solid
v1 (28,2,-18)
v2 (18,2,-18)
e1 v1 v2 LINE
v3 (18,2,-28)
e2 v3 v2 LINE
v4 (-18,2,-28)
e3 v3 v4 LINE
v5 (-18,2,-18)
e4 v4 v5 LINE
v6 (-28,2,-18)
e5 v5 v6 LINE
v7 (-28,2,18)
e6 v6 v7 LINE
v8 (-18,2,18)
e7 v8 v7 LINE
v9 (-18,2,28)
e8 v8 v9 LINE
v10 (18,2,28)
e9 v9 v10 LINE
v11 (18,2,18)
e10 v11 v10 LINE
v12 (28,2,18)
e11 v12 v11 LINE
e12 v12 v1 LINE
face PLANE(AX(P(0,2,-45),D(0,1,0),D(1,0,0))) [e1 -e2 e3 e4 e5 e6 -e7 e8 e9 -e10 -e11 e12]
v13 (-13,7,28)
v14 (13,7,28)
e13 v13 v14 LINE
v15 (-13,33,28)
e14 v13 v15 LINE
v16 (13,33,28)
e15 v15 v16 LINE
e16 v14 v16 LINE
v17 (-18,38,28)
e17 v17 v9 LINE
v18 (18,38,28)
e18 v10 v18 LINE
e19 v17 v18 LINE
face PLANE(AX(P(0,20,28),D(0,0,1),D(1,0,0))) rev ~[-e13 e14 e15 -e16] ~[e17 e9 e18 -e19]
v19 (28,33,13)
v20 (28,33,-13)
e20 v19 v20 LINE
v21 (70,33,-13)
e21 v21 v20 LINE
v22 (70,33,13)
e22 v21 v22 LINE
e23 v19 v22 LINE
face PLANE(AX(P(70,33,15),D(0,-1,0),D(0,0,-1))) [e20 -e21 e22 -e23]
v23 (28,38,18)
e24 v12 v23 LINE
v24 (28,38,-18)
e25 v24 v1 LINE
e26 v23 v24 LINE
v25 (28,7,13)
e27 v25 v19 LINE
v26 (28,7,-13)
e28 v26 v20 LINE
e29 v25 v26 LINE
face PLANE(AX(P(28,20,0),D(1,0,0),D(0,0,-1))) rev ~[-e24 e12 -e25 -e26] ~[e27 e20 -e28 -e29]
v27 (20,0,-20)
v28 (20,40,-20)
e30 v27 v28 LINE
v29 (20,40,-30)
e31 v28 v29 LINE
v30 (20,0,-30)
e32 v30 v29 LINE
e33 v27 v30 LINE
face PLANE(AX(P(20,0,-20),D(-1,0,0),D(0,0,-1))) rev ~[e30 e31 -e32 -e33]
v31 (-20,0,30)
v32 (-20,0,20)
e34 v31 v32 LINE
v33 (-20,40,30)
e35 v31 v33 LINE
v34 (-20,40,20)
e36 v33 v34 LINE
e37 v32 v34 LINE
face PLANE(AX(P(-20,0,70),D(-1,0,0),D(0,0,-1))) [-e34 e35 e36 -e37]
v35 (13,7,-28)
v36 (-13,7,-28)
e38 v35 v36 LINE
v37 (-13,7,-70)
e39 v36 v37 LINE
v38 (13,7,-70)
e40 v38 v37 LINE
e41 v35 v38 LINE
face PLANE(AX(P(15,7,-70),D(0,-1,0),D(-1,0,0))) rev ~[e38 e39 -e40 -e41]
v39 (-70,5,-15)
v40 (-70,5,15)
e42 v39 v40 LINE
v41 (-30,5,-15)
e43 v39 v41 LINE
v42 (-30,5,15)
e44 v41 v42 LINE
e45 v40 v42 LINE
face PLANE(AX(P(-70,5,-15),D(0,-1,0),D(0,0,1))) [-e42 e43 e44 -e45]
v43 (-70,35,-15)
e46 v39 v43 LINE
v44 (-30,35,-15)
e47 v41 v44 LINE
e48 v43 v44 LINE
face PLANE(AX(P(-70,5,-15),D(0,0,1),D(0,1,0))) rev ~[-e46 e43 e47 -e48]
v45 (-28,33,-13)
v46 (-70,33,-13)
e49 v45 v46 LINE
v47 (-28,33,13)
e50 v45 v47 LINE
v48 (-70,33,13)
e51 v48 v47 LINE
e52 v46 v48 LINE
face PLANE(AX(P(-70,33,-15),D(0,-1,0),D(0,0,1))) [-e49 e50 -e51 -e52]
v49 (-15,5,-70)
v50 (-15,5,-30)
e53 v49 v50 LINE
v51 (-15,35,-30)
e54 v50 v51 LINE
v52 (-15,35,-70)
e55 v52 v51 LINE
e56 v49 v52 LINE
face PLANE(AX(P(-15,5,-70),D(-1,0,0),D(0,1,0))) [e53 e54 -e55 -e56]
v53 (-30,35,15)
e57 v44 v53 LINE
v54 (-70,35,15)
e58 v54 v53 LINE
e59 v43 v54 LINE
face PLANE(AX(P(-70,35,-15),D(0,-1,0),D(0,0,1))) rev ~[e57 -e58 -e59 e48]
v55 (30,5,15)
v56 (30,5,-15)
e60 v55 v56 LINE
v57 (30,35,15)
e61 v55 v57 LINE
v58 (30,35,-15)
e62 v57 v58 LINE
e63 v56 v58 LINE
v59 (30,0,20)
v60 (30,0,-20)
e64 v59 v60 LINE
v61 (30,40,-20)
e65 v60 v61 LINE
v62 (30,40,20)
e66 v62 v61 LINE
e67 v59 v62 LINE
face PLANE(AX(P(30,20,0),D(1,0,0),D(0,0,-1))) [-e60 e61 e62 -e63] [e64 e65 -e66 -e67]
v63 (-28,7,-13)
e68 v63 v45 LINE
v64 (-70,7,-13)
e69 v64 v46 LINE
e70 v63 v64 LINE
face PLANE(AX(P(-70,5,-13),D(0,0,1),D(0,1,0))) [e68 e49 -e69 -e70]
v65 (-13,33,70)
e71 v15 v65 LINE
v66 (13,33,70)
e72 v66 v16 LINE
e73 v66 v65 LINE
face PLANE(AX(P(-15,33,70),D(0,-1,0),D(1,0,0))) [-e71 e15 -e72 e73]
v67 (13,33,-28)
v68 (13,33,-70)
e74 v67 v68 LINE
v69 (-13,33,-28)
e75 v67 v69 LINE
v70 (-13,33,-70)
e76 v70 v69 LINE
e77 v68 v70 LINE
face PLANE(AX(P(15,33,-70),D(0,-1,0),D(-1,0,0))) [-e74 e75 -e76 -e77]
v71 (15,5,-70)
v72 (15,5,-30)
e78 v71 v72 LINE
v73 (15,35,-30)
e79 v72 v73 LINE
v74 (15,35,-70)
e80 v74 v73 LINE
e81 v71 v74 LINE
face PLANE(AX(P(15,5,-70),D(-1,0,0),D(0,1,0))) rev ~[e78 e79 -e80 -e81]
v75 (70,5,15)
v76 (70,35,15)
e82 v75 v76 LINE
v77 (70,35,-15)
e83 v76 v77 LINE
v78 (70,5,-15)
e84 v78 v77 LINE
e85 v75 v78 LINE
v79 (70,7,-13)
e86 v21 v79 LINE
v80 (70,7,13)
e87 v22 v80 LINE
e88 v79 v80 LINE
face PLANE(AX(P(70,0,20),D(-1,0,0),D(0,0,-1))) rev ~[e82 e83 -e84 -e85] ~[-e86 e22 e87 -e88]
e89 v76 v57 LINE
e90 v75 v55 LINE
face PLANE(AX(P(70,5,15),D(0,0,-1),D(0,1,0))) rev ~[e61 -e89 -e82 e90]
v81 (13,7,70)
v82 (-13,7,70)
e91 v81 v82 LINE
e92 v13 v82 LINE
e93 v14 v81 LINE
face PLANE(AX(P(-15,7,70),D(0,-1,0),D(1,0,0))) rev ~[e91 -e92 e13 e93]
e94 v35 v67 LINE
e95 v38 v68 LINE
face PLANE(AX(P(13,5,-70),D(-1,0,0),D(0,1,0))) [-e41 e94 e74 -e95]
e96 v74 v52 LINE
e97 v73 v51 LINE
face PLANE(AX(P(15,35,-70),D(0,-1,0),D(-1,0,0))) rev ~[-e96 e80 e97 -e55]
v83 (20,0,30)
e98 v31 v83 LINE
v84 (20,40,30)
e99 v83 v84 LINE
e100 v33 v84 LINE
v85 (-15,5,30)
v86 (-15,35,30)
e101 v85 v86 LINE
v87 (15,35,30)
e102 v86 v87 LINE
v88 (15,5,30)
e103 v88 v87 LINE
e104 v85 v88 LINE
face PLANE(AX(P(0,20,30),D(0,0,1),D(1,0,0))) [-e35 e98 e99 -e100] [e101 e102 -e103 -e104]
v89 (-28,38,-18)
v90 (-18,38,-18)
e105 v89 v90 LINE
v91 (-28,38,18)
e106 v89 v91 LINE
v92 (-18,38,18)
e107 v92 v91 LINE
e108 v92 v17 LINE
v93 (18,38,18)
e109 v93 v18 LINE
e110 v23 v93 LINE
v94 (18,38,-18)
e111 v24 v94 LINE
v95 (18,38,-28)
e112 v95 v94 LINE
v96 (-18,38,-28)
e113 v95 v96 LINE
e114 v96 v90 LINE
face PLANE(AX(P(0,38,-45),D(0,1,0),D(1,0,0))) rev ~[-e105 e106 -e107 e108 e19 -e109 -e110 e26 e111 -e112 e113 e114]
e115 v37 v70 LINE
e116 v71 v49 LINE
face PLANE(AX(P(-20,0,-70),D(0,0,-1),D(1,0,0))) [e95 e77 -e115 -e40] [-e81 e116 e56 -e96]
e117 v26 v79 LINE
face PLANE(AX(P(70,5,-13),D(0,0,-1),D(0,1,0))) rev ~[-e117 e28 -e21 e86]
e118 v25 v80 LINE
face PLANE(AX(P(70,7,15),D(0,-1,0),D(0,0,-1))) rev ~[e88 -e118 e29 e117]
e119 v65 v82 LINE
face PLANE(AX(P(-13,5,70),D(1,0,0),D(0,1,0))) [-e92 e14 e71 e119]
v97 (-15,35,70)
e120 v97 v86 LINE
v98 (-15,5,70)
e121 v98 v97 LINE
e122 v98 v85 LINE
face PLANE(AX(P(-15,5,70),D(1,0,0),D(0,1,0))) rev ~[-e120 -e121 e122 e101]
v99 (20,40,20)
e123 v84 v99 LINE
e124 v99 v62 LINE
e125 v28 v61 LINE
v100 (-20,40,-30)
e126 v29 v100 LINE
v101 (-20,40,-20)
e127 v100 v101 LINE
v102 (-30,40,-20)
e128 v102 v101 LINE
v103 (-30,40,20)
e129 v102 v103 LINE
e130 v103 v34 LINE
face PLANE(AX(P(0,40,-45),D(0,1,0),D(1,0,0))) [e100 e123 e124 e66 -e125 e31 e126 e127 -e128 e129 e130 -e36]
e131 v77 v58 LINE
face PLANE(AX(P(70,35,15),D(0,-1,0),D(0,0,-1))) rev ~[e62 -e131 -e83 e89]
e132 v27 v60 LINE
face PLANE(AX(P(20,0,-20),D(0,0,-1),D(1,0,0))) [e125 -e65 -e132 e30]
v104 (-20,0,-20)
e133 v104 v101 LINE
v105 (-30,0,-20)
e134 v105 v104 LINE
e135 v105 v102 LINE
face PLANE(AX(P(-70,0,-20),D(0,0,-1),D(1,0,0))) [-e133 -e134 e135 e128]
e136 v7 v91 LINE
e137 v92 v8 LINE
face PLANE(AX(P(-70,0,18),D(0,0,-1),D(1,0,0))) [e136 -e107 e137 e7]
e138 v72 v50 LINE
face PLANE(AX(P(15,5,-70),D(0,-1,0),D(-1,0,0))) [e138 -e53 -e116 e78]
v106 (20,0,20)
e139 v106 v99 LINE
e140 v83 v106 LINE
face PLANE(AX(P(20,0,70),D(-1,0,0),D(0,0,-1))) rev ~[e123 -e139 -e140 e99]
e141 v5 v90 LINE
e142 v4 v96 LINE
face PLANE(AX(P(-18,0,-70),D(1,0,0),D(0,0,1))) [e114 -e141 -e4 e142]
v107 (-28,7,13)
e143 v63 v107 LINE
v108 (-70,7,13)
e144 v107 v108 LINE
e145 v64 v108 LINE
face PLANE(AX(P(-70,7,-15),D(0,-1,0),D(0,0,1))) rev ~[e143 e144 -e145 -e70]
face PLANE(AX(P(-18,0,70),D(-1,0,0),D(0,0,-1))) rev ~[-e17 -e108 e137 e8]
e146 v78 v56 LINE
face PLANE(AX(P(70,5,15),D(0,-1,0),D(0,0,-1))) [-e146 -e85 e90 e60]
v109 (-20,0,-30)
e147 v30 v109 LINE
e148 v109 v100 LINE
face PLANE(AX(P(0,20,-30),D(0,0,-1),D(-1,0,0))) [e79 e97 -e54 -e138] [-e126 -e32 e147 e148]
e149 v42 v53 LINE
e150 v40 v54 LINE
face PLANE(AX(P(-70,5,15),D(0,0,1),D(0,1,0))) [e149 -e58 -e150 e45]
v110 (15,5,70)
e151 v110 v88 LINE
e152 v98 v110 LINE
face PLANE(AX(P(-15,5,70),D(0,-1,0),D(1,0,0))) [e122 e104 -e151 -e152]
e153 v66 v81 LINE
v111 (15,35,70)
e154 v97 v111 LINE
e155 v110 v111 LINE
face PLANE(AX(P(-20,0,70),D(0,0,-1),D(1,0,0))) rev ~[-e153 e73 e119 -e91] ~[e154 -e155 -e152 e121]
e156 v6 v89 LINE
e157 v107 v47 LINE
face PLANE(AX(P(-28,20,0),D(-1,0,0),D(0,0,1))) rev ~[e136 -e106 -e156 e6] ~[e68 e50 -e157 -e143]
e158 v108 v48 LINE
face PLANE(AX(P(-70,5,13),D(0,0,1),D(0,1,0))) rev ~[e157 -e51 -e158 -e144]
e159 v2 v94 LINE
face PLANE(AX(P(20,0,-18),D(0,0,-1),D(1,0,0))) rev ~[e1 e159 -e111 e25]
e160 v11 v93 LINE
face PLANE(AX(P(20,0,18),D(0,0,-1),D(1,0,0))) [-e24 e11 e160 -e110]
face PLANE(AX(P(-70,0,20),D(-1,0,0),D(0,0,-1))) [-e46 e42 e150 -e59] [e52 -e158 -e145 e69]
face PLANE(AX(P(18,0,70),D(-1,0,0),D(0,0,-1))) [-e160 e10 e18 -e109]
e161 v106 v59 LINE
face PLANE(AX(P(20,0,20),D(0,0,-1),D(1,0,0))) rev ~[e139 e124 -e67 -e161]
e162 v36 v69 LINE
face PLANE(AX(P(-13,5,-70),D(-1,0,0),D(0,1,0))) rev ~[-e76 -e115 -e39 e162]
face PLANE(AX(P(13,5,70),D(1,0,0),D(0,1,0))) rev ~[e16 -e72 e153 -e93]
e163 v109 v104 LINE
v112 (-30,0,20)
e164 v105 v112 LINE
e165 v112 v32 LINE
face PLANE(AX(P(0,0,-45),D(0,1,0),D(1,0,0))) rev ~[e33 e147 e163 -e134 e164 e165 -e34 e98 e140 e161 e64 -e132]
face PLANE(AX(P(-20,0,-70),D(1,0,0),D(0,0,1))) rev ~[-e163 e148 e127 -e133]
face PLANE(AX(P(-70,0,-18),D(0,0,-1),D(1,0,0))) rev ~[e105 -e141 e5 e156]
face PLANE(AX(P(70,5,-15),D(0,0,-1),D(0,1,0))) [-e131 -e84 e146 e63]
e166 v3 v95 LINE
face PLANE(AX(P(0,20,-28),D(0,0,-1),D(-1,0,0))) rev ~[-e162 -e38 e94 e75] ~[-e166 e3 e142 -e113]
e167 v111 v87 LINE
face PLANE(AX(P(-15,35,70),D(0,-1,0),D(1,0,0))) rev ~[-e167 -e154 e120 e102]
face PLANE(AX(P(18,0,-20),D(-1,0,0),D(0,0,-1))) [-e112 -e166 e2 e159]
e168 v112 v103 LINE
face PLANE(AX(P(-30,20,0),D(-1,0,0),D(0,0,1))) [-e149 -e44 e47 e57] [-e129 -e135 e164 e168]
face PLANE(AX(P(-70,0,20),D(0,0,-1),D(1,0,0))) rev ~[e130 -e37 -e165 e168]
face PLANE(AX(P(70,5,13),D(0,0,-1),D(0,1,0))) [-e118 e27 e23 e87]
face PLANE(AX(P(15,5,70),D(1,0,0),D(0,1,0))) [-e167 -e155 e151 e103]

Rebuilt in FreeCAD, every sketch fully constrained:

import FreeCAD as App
import Part
import Sketcher

V = App.Vector


def faces_at(feature, points):
    """Names of the faces that lie closest to the given points."""
    faces = feature.Shape.Faces
    near = lambda p: min(range(len(faces)), key=lambda i: faces[i].distToShape(Part.Vertex(*p))[0])
    return sorted({f"Face{near(p) + 1}" for p in points})

doc = App.newDocument("Part")
body = doc.addObject("PartDesign::Body", "Body")

# Sketch on XZ plane
sketch1 = body.newObject("Sketcher::SketchObject", "Sketch")
sketch1.AttachmentSupport = (doc.getObject("XZ_Plane"), [""])
sketch1.MapMode = "FlatFace"
sketch1.addGeometry([
    Part.LineSegment(V(-20, -70, 0), V(-20, -20, 0)),  # 0
    Part.LineSegment(V(-20, -20, 0), V(-70, -20, 0)),  # 1
    Part.LineSegment(V(-70, -20, 0), V(-70, 20, 0)),  # 2
    Part.LineSegment(V(-70, 20, 0), V(-20, 20, 0)),  # 3
    Part.LineSegment(V(-20, 20, 0), V(-20, 70, 0)),  # 4
    Part.LineSegment(V(-20, 70, 0), V(20, 70, 0)),  # 5
    Part.LineSegment(V(20, 70, 0), V(20, 20, 0)),  # 6
    Part.LineSegment(V(20, 20, 0), V(70, 20, 0)),  # 7
    Part.LineSegment(V(70, 20, 0), V(70, -20, 0)),  # 8
    Part.LineSegment(V(70, -20, 0), V(20, -20, 0)),  # 9
    Part.LineSegment(V(20, -20, 0), V(20, -70, 0)),  # 10
    Part.LineSegment(V(20, -70, 0), V(-20, -70, 0)),  # 11
], False)
sketch1.addConstraint([
    Sketcher.Constraint("Coincident", 0, 2, 1, 1),
    Sketcher.Constraint("Coincident", 1, 2, 2, 1),
    Sketcher.Constraint("Coincident", 2, 2, 3, 1),
    Sketcher.Constraint("Coincident", 3, 2, 4, 1),
    Sketcher.Constraint("Coincident", 4, 2, 5, 1),
    Sketcher.Constraint("Coincident", 5, 2, 6, 1),
    Sketcher.Constraint("Coincident", 6, 2, 7, 1),
    Sketcher.Constraint("Coincident", 7, 2, 8, 1),
    Sketcher.Constraint("Coincident", 8, 2, 9, 1),
    Sketcher.Constraint("Coincident", 9, 2, 10, 1),
    Sketcher.Constraint("Coincident", 10, 2, 11, 1),
    Sketcher.Constraint("Coincident", 11, 2, 0, 1),
    Sketcher.Constraint("Vertical", 0),
    Sketcher.Constraint("Horizontal", 1),
    Sketcher.Constraint("Vertical", 2),
    Sketcher.Constraint("Horizontal", 3),
    Sketcher.Constraint("Vertical", 4),
    Sketcher.Constraint("Horizontal", 5),
    Sketcher.Constraint("Vertical", 6),
    Sketcher.Constraint("Horizontal", 7),
    Sketcher.Constraint("Vertical", 8),
    Sketcher.Constraint("Horizontal", 9),
    Sketcher.Constraint("Vertical", 10),
    Sketcher.Constraint("Horizontal", 11),
    Sketcher.Constraint("Symmetric", 0, 2, 6, 2, -1, 1),
    Sketcher.Constraint("Symmetric", 2, 2, 8, 2, -1, 1),
    Sketcher.Constraint("Symmetric", 4, 2, 10, 2, -1, 1),
    Sketcher.Constraint("Symmetric", 3, 2, 6, 2, -2),
    Sketcher.Constraint("Equal", 9, 0),
    Sketcher.Constraint("Equal", 11, 2),
    Sketcher.Constraint("DistanceX", 1, 2, 1, 1, 50.0),
    Sketcher.Constraint("DistanceX", 5, 1, 5, 2, 40.0),
])
pad1 = body.newObject("PartDesign::Pad", "Pad")
pad1.Profile = sketch1
pad1.Length = 40
pad1.Reversed = True

# Sketch on YZ plane
sketch2 = body.newObject("Sketcher::SketchObject", "Sketch001")
sketch2.AttachmentSupport = (doc.getObject("YZ_Plane"), [""])
sketch2.MapMode = "FlatFace"
sketch2.AttachmentOffset = App.Placement(V(0, 0, 70), App.Rotation())
sketch2.addGeometry([
    Part.LineSegment(V(40, 20, 0), V(0, 20, 0)),  # 0
    Part.LineSegment(V(0, 20, 0), V(0, -20, 0)),  # 1
    Part.LineSegment(V(0, -20, 0), V(40, -20, 0)),  # 2
    Part.LineSegment(V(40, -20, 0), V(40, 20, 0)),  # 3
    Part.LineSegment(V(5, -15, 0), V(5, 15, 0)),  # 4
    Part.LineSegment(V(5, 15, 0), V(35, 15, 0)),  # 5
    Part.LineSegment(V(35, 15, 0), V(35, -15, 0)),  # 6
    Part.LineSegment(V(35, -15, 0), V(5, -15, 0)),  # 7
], False)
sketch2.addConstraint([
    Sketcher.Constraint("Coincident", 0, 2, 1, 1),
    Sketcher.Constraint("Coincident", 1, 2, 2, 1),
    Sketcher.Constraint("Coincident", 2, 2, 3, 1),
    Sketcher.Constraint("Coincident", 3, 2, 0, 1),
    Sketcher.Constraint("Coincident", 4, 2, 5, 1),
    Sketcher.Constraint("Coincident", 5, 2, 6, 1),
    Sketcher.Constraint("Coincident", 6, 2, 7, 1),
    Sketcher.Constraint("Coincident", 7, 2, 4, 1),
    Sketcher.Constraint("Horizontal", 0),
    Sketcher.Constraint("Vertical", 1),
    Sketcher.Constraint("Horizontal", 2),
    Sketcher.Constraint("Vertical", 3),
    Sketcher.Constraint("Vertical", 4),
    Sketcher.Constraint("Horizontal", 5),
    Sketcher.Constraint("Vertical", 6),
    Sketcher.Constraint("Horizontal", 7),
    Sketcher.Constraint("Symmetric", 0, 2, 1, 2, -1, 1),
    Sketcher.Constraint("Equal", 2, 1),
    Sketcher.Constraint("Equal", 7, 4),
    Sketcher.Constraint("DistanceX", 0, 2, 0, 1, 40.0),
    Sketcher.Constraint("DistanceX", 5, 1, 5, 2, 30.0),
    Sketcher.Constraint("DistanceX", -1, 1, 4, 2, 5.0),
    Sketcher.Constraint("DistanceY", -1, 1, 4, 2, 15.0),
])
pocket1 = body.newObject("PartDesign::Pocket", "Pocket")
pocket1.Profile = sketch2
pocket1.Length = 40

# Sketch on XY plane
sketch3 = body.newObject("Sketcher::SketchObject", "Sketch002")
sketch3.AttachmentSupport = (doc.getObject("XY_Plane"), [""])
sketch3.MapMode = "FlatFace"
sketch3.AttachmentOffset = App.Placement(V(0, 0, -70), App.Rotation())
sketch3.addGeometry([
    Part.LineSegment(V(20, 40, 0), V(20, 0, 0)),  # 0
    Part.LineSegment(V(20, 0, 0), V(-20, 0, 0)),  # 1
    Part.LineSegment(V(-20, 0, 0), V(-20, 40, 0)),  # 2
    Part.LineSegment(V(-20, 40, 0), V(20, 40, 0)),  # 3
    Part.LineSegment(V(-15, 5, 0), V(15, 5, 0)),  # 4
    Part.LineSegment(V(15, 5, 0), V(15, 35, 0)),  # 5
    Part.LineSegment(V(15, 35, 0), V(-15, 35, 0)),  # 6
    Part.LineSegment(V(-15, 35, 0), V(-15, 5, 0)),  # 7
], False)
sketch3.addConstraint([
    Sketcher.Constraint("Coincident", 0, 2, 1, 1),
    Sketcher.Constraint("Coincident", 1, 2, 2, 1),
    Sketcher.Constraint("Coincident", 2, 2, 3, 1),
    Sketcher.Constraint("Coincident", 3, 2, 0, 1),
    Sketcher.Constraint("Coincident", 4, 2, 5, 1),
    Sketcher.Constraint("Coincident", 5, 2, 6, 1),
    Sketcher.Constraint("Coincident", 6, 2, 7, 1),
    Sketcher.Constraint("Coincident", 7, 2, 4, 1),
    Sketcher.Constraint("Vertical", 0),
    Sketcher.Constraint("Horizontal", 1),
    Sketcher.Constraint("Vertical", 2),
    Sketcher.Constraint("Horizontal", 3),
    Sketcher.Constraint("Horizontal", 4),
    Sketcher.Constraint("Vertical", 5),
    Sketcher.Constraint("Horizontal", 6),
    Sketcher.Constraint("Vertical", 7),
    Sketcher.Constraint("Symmetric", 0, 2, 1, 2, -1, 1),
    Sketcher.Constraint("Equal", 3, 0),
    Sketcher.Constraint("Equal", 6, 5),
    Sketcher.Constraint("DistanceX", 1, 2, 1, 1, 40.0),
    Sketcher.Constraint("DistanceX", 4, 1, 4, 2, 30.0),
    Sketcher.Constraint("DistanceX", -1, 1, 4, 2, 15.0),
    Sketcher.Constraint("DistanceY", -1, 1, 4, 2, 5.0),
])
pocket2 = body.newObject("PartDesign::Pocket", "Pocket001")
pocket2.Profile = sketch3
pocket2.Length = 40
pocket2.Reversed = True

# Sketch on YZ plane
sketch4 = body.newObject("Sketcher::SketchObject", "Sketch003")
sketch4.AttachmentSupport = (doc.getObject("YZ_Plane"), [""])
sketch4.MapMode = "FlatFace"
sketch4.AttachmentOffset = App.Placement(V(0, 0, -70), App.Rotation())
sketch4.addGeometry([
    Part.LineSegment(V(40, -20, 0), V(0, -20, 0)),  # 0
    Part.LineSegment(V(0, -20, 0), V(0, 20, 0)),  # 1
    Part.LineSegment(V(0, 20, 0), V(40, 20, 0)),  # 2
    Part.LineSegment(V(40, 20, 0), V(40, -20, 0)),  # 3
    Part.LineSegment(V(5, 15, 0), V(5, -15, 0)),  # 4
    Part.LineSegment(V(5, -15, 0), V(35, -15, 0)),  # 5
    Part.LineSegment(V(35, -15, 0), V(35, 15, 0)),  # 6
    Part.LineSegment(V(35, 15, 0), V(5, 15, 0)),  # 7
], False)
sketch4.addConstraint([
    Sketcher.Constraint("Coincident", 0, 2, 1, 1),
    Sketcher.Constraint("Coincident", 1, 2, 2, 1),
    Sketcher.Constraint("Coincident", 2, 2, 3, 1),
    Sketcher.Constraint("Coincident", 3, 2, 0, 1),
    Sketcher.Constraint("Coincident", 4, 2, 5, 1),
    Sketcher.Constraint("Coincident", 5, 2, 6, 1),
    Sketcher.Constraint("Coincident", 6, 2, 7, 1),
    Sketcher.Constraint("Coincident", 7, 2, 4, 1),
    Sketcher.Constraint("Horizontal", 0),
    Sketcher.Constraint("Vertical", 1),
    Sketcher.Constraint("Horizontal", 2),
    Sketcher.Constraint("Vertical", 3),
    Sketcher.Constraint("Vertical", 4),
    Sketcher.Constraint("Horizontal", 5),
    Sketcher.Constraint("Vertical", 6),
    Sketcher.Constraint("Horizontal", 7),
    Sketcher.Constraint("Symmetric", 0, 2, 1, 2, -1, 1),
    Sketcher.Constraint("Equal", 2, 1),
    Sketcher.Constraint("Equal", 7, 4),
    Sketcher.Constraint("DistanceX", 0, 2, 0, 1, 40.0),
    Sketcher.Constraint("DistanceX", 5, 1, 5, 2, 30.0),
    Sketcher.Constraint("DistanceX", -1, 1, 4, 2, 5.0),
    Sketcher.Constraint("DistanceY", 4, 2, -1, 1, 15.0),
])
pocket3 = body.newObject("PartDesign::Pocket", "Pocket002")
pocket3.Profile = sketch4
pocket3.Length = 40
pocket3.Reversed = True

# Sketch on XY plane
sketch5 = body.newObject("Sketcher::SketchObject", "Sketch004")
sketch5.AttachmentSupport = (doc.getObject("XY_Plane"), [""])
sketch5.MapMode = "FlatFace"
sketch5.AttachmentOffset = App.Placement(V(0, 0, 70), App.Rotation())
sketch5.addGeometry([
    Part.LineSegment(V(-20, 40, 0), V(-20, 0, 0)),  # 0
    Part.LineSegment(V(-20, 0, 0), V(20, 0, 0)),  # 1
    Part.LineSegment(V(20, 0, 0), V(20, 40, 0)),  # 2
    Part.LineSegment(V(20, 40, 0), V(-20, 40, 0)),  # 3
    Part.LineSegment(V(15, 5, 0), V(-15, 5, 0)),  # 4
    Part.LineSegment(V(-15, 5, 0), V(-15, 35, 0)),  # 5
    Part.LineSegment(V(-15, 35, 0), V(15, 35, 0)),  # 6
    Part.LineSegment(V(15, 35, 0), V(15, 5, 0)),  # 7
], False)
sketch5.addConstraint([
    Sketcher.Constraint("Coincident", 0, 2, 1, 1),
    Sketcher.Constraint("Coincident", 1, 2, 2, 1),
    Sketcher.Constraint("Coincident", 2, 2, 3, 1),
    Sketcher.Constraint("Coincident", 3, 2, 0, 1),
    Sketcher.Constraint("Coincident", 4, 2, 5, 1),
    Sketcher.Constraint("Coincident", 5, 2, 6, 1),
    Sketcher.Constraint("Coincident", 6, 2, 7, 1),
    Sketcher.Constraint("Coincident", 7, 2, 4, 1),
    Sketcher.Constraint("Vertical", 0),
    Sketcher.Constraint("Horizontal", 1),
    Sketcher.Constraint("Vertical", 2),
    Sketcher.Constraint("Horizontal", 3),
    Sketcher.Constraint("Horizontal", 4),
    Sketcher.Constraint("Vertical", 5),
    Sketcher.Constraint("Horizontal", 6),
    Sketcher.Constraint("Vertical", 7),
    Sketcher.Constraint("Symmetric", 0, 2, 1, 2, -1, 1),
    Sketcher.Constraint("Equal", 3, 0),
    Sketcher.Constraint("Equal", 6, 5),
    Sketcher.Constraint("DistanceX", 1, 1, 1, 2, 40.0),
    Sketcher.Constraint("DistanceX", 4, 2, 4, 1, 30.0),
    Sketcher.Constraint("DistanceX", 4, 2, -1, 1, 15.0),
    Sketcher.Constraint("DistanceY", -1, 1, 4, 2, 5.0),
])
pocket4 = body.newObject("PartDesign::Pocket", "Pocket003")
pocket4.Profile = sketch5
pocket4.Length = 40
doc.recompute()

thickness = body.newObject("PartDesign::Thickness", "Thickness")
thickness.Base = (pocket4, faces_at(pocket4, [
    (0, 20, 70),
    (70, 20, 0),
    (0, 20, -70),
    (-70, 20, 0),
]))
thickness.Value = 2
thickness.Reversed = True
thickness.Join = "Intersection"

doc.recompute()
